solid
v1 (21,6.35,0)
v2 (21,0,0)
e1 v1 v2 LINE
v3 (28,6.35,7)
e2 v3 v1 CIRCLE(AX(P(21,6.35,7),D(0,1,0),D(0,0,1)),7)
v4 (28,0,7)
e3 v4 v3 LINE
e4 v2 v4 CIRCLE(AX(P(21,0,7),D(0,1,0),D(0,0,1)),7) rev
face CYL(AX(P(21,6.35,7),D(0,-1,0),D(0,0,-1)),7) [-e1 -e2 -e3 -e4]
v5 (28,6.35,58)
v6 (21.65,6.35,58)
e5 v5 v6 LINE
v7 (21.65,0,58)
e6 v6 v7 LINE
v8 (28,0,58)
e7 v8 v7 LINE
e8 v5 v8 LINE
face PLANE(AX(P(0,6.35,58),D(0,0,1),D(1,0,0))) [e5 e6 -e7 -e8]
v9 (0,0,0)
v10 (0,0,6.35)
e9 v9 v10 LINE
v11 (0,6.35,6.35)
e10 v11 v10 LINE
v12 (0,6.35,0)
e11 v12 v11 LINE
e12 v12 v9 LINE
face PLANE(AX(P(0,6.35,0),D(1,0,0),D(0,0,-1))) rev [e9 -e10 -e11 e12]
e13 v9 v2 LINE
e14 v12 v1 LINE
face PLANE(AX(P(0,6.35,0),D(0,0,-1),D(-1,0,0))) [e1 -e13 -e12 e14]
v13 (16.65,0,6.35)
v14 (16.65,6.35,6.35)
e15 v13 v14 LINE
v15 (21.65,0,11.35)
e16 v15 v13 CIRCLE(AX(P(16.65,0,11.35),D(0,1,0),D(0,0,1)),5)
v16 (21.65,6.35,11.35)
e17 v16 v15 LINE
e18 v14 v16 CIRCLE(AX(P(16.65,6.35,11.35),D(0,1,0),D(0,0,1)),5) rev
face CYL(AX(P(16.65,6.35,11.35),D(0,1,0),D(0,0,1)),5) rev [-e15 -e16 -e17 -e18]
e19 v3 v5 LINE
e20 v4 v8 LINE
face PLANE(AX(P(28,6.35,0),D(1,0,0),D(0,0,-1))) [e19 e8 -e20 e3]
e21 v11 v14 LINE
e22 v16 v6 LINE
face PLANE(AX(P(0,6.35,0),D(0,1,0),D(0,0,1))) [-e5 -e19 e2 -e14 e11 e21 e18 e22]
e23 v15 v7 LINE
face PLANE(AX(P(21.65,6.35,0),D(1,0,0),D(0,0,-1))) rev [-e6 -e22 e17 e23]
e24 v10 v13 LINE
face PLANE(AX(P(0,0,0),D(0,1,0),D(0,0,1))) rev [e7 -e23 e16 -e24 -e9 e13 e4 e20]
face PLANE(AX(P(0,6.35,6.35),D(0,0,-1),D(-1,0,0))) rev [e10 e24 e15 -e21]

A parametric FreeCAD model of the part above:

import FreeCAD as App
import Part
import Sketcher
Q = App.Units.Quantity


def edges_at(feature, points):
    """Names of the edges that pass closest to the given points."""
    edges = feature.Shape.Edges
    near = lambda p: min(range(len(edges)), key=lambda i: edges[i].distToShape(Part.Vertex(*p))[0])
    return sorted({f"Edge{near(p) + 1}" for p in points})


def add_polygon(sketch, points):
    """Adds a closed chain of lines whose ends are joined by coincident constraints."""
    first, n = sketch.GeometryCount, len(points)
    for a, b in zip(points, points[1:] + points[:1]):
        sketch.addGeometry(Part.LineSegment(App.Vector(*a, 0), App.Vector(*b, 0)), False)
    for i in range(n):
        sketch.addConstraint(Sketcher.Constraint("Coincident", first + i, 2, first + (i + 1) % n, 1))

doc = App.newDocument("Part")
body = doc.addObject("PartDesign::Body", "Body")

sketch1 = body.newObject("Sketcher::SketchObject", "Sketch")
sketch1.AttachmentSupport = (doc.getObject("XZ_Plane"), [""])
sketch1.MapMode = "FlatFace"
add_polygon(sketch1, [(0, 0), (0, 6), (22, 6), (22, 58), (28, 58), (28, 0)])
sketch1.addConstraint([
    Sketcher.Constraint("Vertical", 0),
    Sketcher.Constraint("Horizontal", 1),
    Sketcher.Constraint("Vertical", 2),
    Sketcher.Constraint("Horizontal", 3),
    Sketcher.Constraint("Vertical", 4),
    Sketcher.Constraint("Horizontal", 5),
    Sketcher.Constraint("Coincident", 5, 2, -1, 1),
    Sketcher.Constraint("Equal", 3, 0),
    Sketcher.Constraint("DistanceX", 5, 2, 5, 1, Q("28 mm")),
    Sketcher.Constraint("DistanceY", 4, 2, 4, 1, Q("58 mm")),
    Sketcher.Constraint("DistanceX", 1, 1, 1, 2, Q("21.65 mm")),
])
pad1 = body.newObject("PartDesign::Pad", "Pad")
pad1.Profile = sketch1
pad1.Length = 6.35
pad1.Reversed = True
doc.recompute()

fillet = body.newObject("PartDesign::Fillet", "Fillet")
fillet.Base = (pad1, edges_at(pad1, [(21.65, 3.175, 6.35)]))
fillet.Radius = 5
doc.recompute()

fillet2 = body.newObject("PartDesign::Fillet", "Fillet001")
fillet2.Base = (fillet, edges_at(fillet, [(28, 3.175, 0)]))
fillet2.Radius = 7

doc.recompute()
